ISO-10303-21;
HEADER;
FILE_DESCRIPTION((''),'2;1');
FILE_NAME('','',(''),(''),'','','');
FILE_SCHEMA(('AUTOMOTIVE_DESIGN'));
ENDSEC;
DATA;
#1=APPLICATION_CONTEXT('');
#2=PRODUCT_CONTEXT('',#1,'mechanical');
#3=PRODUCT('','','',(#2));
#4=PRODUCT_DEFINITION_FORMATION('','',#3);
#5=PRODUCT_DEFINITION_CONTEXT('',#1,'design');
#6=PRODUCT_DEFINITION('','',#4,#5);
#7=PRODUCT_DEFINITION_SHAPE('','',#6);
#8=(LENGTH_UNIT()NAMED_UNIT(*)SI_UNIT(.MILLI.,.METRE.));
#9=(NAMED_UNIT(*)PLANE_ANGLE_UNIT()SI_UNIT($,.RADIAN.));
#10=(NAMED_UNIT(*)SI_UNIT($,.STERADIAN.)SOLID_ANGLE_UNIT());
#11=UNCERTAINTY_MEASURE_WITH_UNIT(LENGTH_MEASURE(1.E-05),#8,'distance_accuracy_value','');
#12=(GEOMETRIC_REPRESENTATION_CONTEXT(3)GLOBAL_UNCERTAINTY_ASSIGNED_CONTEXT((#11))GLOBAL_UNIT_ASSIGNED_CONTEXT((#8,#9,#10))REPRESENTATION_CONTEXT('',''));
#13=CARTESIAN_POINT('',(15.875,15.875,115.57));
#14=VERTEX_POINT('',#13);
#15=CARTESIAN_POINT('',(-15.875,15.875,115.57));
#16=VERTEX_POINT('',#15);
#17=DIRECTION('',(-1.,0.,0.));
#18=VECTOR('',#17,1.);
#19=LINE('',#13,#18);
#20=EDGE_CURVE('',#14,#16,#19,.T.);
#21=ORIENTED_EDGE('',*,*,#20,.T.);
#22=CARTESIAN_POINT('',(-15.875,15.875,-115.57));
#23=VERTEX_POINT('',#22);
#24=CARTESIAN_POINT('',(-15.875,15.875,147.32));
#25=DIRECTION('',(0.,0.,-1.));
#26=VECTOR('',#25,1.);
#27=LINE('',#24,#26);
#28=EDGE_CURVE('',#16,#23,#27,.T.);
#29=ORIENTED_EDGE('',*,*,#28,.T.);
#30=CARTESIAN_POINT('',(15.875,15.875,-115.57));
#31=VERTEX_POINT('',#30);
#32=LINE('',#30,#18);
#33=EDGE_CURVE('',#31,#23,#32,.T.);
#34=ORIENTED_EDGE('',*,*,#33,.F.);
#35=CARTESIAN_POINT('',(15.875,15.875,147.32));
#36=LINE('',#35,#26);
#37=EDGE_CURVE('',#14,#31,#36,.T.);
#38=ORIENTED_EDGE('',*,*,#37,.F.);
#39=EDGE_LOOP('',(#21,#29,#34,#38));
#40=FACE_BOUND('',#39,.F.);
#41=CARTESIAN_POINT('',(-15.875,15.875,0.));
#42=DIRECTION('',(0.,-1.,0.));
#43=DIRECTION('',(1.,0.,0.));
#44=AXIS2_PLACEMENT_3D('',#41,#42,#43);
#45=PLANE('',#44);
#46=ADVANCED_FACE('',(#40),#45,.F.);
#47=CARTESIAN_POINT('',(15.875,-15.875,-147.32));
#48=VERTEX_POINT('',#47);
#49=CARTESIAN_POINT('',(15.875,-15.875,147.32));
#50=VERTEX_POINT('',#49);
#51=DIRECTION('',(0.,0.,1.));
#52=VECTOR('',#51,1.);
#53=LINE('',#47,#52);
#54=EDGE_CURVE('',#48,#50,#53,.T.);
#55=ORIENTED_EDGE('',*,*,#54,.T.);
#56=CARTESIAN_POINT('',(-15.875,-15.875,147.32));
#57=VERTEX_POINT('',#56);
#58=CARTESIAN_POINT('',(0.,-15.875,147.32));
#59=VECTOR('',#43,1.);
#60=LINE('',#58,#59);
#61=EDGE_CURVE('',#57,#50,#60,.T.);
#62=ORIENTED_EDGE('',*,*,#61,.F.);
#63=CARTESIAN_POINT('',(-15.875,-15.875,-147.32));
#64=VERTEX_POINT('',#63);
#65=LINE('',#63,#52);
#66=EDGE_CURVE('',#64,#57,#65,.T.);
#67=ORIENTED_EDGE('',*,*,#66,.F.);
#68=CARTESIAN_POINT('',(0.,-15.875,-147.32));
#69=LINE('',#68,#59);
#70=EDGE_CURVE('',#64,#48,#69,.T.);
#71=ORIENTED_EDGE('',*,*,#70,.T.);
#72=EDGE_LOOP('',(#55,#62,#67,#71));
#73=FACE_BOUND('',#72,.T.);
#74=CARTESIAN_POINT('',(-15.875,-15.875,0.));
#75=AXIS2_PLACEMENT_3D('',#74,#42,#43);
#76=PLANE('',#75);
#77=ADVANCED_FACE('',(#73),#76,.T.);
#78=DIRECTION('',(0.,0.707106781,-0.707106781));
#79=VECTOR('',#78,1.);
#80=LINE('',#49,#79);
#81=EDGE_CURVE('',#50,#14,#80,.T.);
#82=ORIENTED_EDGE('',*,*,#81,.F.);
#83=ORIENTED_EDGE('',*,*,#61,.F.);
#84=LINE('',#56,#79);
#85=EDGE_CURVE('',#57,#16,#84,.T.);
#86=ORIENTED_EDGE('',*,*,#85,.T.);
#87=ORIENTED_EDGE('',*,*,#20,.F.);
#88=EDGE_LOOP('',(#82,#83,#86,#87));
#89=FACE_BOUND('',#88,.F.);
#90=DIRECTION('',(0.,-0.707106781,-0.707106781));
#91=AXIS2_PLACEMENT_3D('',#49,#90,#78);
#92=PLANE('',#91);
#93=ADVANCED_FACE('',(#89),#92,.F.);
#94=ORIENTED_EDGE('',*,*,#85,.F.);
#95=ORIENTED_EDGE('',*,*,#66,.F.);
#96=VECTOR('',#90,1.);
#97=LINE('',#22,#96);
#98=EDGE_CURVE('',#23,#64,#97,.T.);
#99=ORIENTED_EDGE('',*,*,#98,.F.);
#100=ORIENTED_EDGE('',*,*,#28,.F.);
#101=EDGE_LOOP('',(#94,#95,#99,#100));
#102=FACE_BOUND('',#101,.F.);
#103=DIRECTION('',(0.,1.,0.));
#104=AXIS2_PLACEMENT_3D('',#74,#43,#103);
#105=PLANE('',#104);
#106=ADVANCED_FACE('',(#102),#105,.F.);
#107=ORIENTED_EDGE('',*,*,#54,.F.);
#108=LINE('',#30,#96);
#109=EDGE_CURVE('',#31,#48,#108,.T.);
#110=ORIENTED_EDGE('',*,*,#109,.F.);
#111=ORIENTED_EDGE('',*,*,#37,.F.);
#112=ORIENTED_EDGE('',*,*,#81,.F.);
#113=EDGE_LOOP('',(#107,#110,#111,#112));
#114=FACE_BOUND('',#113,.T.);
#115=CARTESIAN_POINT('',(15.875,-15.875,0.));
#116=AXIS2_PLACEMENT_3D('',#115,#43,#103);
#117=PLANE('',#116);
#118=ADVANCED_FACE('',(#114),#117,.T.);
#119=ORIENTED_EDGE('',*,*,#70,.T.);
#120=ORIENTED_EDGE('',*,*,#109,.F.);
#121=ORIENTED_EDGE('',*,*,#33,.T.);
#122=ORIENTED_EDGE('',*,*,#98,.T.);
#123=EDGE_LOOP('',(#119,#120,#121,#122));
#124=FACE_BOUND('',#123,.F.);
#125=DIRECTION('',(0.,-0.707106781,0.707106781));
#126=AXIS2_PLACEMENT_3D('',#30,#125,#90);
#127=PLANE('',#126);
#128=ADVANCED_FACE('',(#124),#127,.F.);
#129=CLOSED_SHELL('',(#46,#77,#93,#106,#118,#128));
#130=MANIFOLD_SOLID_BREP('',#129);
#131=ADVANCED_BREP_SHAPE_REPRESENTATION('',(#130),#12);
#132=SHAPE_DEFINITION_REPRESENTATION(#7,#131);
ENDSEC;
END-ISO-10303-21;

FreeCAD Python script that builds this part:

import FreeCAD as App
import Part
import Sketcher

V = App.Vector
Q = App.Units.Quantity

doc = App.newDocument("Part")
body = doc.addObject("PartDesign::Body", "Body")

# Sketch on XY plane
sketch1 = doc.addObject("Sketcher::SketchObject", "Sketch")
body.addObject(sketch1)
sketch1.AttachmentSupport = (doc.XY_Plane, [""])
sketch1.MapMode = "FlatFace"
sketch1.addGeometry(Part.LineSegment(V(-15.875, 15.875, 0), V(-15.875, -15.875, 0)), False)
sketch1.addGeometry(Part.LineSegment(V(-15.875, -15.875, 0), V(15.875, -15.875, 0)), False)
sketch1.addGeometry(Part.LineSegment(V(15.875, -15.875, 0), V(15.875, 15.875, 0)), False)
sketch1.addGeometry(Part.LineSegment(V(15.875, 15.875, 0), V(-15.875, 15.875, 0)), False)
sketch1.addConstraint(Sketcher.Constraint("Coincident", 0, 2, 1, 1))
sketch1.addConstraint(Sketcher.Constraint("Coincident", 1, 2, 2, 1))
sketch1.addConstraint(Sketcher.Constraint("Coincident", 2, 2, 3, 1))
sketch1.addConstraint(Sketcher.Constraint("Coincident", 3, 2, 0, 1))
sketch1.addConstraint(Sketcher.Constraint("Vertical", 0))
sketch1.addConstraint(Sketcher.Constraint("Horizontal", 1))
sketch1.addConstraint(Sketcher.Constraint("Vertical", 2))
sketch1.addConstraint(Sketcher.Constraint("Horizontal", 3))
sketch1.addConstraint(Sketcher.Constraint("Symmetric", 0, 2, 2, 2, -1, 1))
sketch1.addConstraint(Sketcher.Constraint("Equal", 3, 0))
sketch1.addConstraint(Sketcher.Constraint("DistanceX", 1, 1, 1, 2, Q("1.25 in")))
pad1 = doc.addObject("PartDesign::Pad", "Pad")
body.addObject(pad1)
pad1.Profile = sketch1
pad1.Length = Q("11.6 in")
pad1.Midplane = True

# Sketch on YZ plane
sketch2 = doc.addObject("Sketcher::SketchObject", "Sketch001")
body.addObject(sketch2)
sketch2.AttachmentSupport = (doc.YZ_Plane, [""])
sketch2.MapMode = "FlatFace"
sketch2.AttachmentOffset = App.Placement(V(0, 0, 0.625 * 25.4), App.Rotation())
sketch2.addGeometry(Part.LineSegment(V(15.875, -115.57, 0), V(-15.875, -147.32, 0)), False)
sketch2.addGeometry(Part.LineSegment(V(-15.875, -147.32, 0), V(15.875, -147.32, 0)), False)
sketch2.addGeometry(Part.LineSegment(V(15.875, -147.32, 0), V(15.875, -115.57, 0)), False)
sketch2.addGeometry(Part.LineSegment(V(15.875, 147.32, 0), V(-15.875, 147.32, 0)), False)
sketch2.addGeometry(Part.LineSegment(V(-15.875, 147.32, 0), V(15.875, 115.57, 0)), False)
sketch2.addGeometry(Part.LineSegment(V(15.875, 115.57, 0), V(15.875, 147.32, 0)), False)
sketch2.addConstraint(Sketcher.Constraint("Coincident", 0, 2, 1, 1))
sketch2.addConstraint(Sketcher.Constraint("Coincident", 1, 2, 2, 1))
sketch2.addConstraint(Sketcher.Constraint("Coincident", 2, 2, 0, 1))
sketch2.addConstraint(Sketcher.Constraint("Coincident", 3, 2, 4, 1))
sketch2.addConstraint(Sketcher.Constraint("Coincident", 4, 2, 5, 1))
sketch2.addConstraint(Sketcher.Constraint("Coincident", 5, 2, 3, 1))
sketch2.addConstraint(Sketcher.Constraint("Horizontal", 1))
sketch2.addConstraint(Sketcher.Constraint("Vertical", 2))
sketch2.addConstraint(Sketcher.Constraint("Horizontal", 3))
sketch2.addConstraint(Sketcher.Constraint("Vertical", 5))
sketch2.addConstraint(Sketcher.Constraint("Symmetric", 1, 2, 3, 2, -1, 1))
sketch2.addConstraint(Sketcher.Constraint("Symmetric", 2, 2, 4, 2, -1))
sketch2.addConstraint(Sketcher.Constraint("Perpendicular", 0, 4))
sketch2.addConstraint(Sketcher.Constraint("Vertical", 0, 2, 3, 2))
sketch2.addConstraint(Sketcher.Constraint("DistanceX", 1, 1, 1, 2, Q("1.25 in")))
sketch2.addConstraint(Sketcher.Constraint("DistanceY", 0, 2, -1, 1, Q("5.8 in")))
pocket1 = doc.addObject("PartDesign::Pocket", "Pocket")
body.addObject(pocket1)
pocket1.Profile = sketch2
pocket1.Type = "ThroughAll"

doc.recompute()
